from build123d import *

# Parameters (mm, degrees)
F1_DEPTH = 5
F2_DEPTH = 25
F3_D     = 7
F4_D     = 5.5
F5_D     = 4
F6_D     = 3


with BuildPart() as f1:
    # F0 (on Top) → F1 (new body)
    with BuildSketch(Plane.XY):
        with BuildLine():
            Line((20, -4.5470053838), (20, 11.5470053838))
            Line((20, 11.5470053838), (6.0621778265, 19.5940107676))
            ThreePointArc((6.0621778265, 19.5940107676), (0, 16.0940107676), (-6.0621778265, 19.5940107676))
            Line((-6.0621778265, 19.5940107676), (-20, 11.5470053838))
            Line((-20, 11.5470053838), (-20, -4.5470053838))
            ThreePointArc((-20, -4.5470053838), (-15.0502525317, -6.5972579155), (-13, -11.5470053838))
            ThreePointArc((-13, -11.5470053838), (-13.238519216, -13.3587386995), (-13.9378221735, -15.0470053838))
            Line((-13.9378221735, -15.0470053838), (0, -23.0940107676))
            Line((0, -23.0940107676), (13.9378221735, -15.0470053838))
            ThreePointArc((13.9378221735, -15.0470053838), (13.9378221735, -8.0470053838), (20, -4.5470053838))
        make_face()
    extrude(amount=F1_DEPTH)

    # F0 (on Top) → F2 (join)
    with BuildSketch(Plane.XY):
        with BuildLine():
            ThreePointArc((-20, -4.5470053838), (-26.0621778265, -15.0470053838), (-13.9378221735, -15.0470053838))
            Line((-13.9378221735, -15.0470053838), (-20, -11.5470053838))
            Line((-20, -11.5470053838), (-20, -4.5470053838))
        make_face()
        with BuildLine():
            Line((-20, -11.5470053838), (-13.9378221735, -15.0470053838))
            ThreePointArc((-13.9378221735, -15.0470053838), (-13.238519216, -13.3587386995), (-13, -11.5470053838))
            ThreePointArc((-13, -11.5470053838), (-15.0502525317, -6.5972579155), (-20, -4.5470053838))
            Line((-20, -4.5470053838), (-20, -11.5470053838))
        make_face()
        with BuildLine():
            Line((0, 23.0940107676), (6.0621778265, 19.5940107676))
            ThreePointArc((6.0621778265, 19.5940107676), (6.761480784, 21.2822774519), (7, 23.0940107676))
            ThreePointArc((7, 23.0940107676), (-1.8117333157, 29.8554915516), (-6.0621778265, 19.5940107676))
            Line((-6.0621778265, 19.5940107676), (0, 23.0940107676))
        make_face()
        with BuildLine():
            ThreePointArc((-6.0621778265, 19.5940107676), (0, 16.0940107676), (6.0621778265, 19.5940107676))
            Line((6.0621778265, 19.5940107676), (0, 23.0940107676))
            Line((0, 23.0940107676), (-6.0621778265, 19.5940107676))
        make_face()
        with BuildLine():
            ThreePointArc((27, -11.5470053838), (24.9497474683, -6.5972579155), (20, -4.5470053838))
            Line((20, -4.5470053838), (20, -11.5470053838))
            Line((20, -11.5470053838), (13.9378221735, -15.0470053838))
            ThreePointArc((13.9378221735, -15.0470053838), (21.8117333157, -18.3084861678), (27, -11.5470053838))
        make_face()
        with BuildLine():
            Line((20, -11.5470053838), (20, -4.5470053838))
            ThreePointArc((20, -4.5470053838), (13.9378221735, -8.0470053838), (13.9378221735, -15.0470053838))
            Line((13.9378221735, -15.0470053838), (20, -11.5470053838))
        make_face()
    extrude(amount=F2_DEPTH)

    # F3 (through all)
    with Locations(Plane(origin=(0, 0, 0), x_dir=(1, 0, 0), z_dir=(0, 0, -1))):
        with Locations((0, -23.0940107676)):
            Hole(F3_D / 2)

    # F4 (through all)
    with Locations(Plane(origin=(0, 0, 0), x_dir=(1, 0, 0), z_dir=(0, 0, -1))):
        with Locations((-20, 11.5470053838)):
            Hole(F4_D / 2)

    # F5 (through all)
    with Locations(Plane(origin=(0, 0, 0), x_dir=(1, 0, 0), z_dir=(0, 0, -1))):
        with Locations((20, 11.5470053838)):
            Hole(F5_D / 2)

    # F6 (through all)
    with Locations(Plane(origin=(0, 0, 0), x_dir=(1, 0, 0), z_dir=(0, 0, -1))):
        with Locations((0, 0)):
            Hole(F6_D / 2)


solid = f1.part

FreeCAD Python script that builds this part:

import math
import FreeCAD as App
import Part
import Sketcher
Q = App.Units.Quantity

doc = App.newDocument("Part")
body = doc.addObject("PartDesign::Body", "Body")

sketch1 = body.newObject("Sketcher::SketchObject", "Sketch")
sketch1.AttachmentSupport = (doc.getObject("XY_Plane"), [""])
sketch1.MapMode = "FlatFace"
sketch1.addGeometry(Part.LineSegment(App.Vector(20, -4.5, 0), App.Vector(20, 11.5, 0)), False)
sketch1.addGeometry(Part.LineSegment(App.Vector(20, 11.5, 0), App.Vector(6.1, 19.6, 0)), False)
sketch1.addGeometry(Part.ArcOfCircle(Part.Circle(App.Vector(0, 23.1, 0), App.Vector(0, 0, 1), 7), math.radians(-150), math.radians(-30)), False)
sketch1.addGeometry(Part.LineSegment(App.Vector(-6.1, 19.6, 0), App.Vector(-20, 11.5, 0)), False)
sketch1.addGeometry(Part.LineSegment(App.Vector(-20, 11.5, 0), App.Vector(-20, -4.5, 0)), False)
sketch1.addGeometry(Part.ArcOfCircle(Part.Circle(App.Vector(-20, -11.5, 0), App.Vector(0, 0, 1), 7), math.radians(0), math.radians(90)), False)
sketch1.addGeometry(Part.ArcOfCircle(Part.Circle(App.Vector(-20, -11.5, 0), App.Vector(0, 0, 1), 7), math.radians(-30), math.radians(0)), False)
sketch1.addGeometry(Part.LineSegment(App.Vector(-13.9, -15, 0), App.Vector(0, -23.1, 0)), False)
sketch1.addGeometry(Part.LineSegment(App.Vector(0, -23.1, 0), App.Vector(13.9, -15, 0)), False)
sketch1.addGeometry(Part.ArcOfCircle(Part.Circle(App.Vector(20, -11.5, 0), App.Vector(0, 0, 1), 7), math.radians(90), math.radians(210)), False)
sketch1.addConstraint(Sketcher.Constraint("Coincident", 0, 2, 1, 1))
sketch1.addConstraint(Sketcher.Constraint("Coincident", 1, 2, 2, 2))
sketch1.addConstraint(Sketcher.Constraint("Coincident", 2, 1, 3, 1))
sketch1.addConstraint(Sketcher.Constraint("Coincident", 3, 2, 4, 1))
sketch1.addConstraint(Sketcher.Constraint("Coincident", 4, 2, 5, 2))
sketch1.addConstraint(Sketcher.Constraint("Tangent", 5, 1, 6, 2))
sketch1.addConstraint(Sketcher.Constraint("Coincident", 6, 1, 7, 1))
sketch1.addConstraint(Sketcher.Constraint("Coincident", 7, 2, 8, 1))
sketch1.addConstraint(Sketcher.Constraint("Coincident", 8, 2, 9, 2))
sketch1.addConstraint(Sketcher.Constraint("Coincident", 9, 1, 0, 1))
sketch1.addConstraint(Sketcher.Constraint("Vertical", 0))
sketch1.addConstraint(Sketcher.Constraint("Vertical", 4))
sketch1.addConstraint(Sketcher.Constraint("Equal", 2, 5))
sketch1.addConstraint(Sketcher.Constraint("Equal", 5, 6))
sketch1.addConstraint(Sketcher.Constraint("Equal", 6, 9))
sketch1.addConstraint(Sketcher.Constraint("Symmetric", 5, 3, 9, 3, -2))
sketch1.addConstraint(Sketcher.Constraint("Symmetric", 1, 2, 2, 1, -2))
sketch1.addConstraint(Sketcher.Constraint("Symmetric", 0, 2, 3, 2, -2))
sketch1.addConstraint(Sketcher.Constraint("PointOnObject", 7, 2, -2))
sketch1.addConstraint(Sketcher.Constraint("Parallel", 1, 7))
sketch1.addConstraint(Sketcher.Constraint("Parallel", 3, 8))
sketch1.addConstraint(Sketcher.Constraint("Horizontal", 9, 3, 5, 1))
sketch1.addConstraint(Sketcher.Constraint("Vertical", 9, 3, 0, 2))
sketch1.addConstraint(Sketcher.Constraint("Equal", 3, 7))
sketch1.addConstraint(Sketcher.Constraint("Radius", 2, Q("7 mm")))
sketch1.addConstraint(Sketcher.Constraint("Angle", 1, Q("150 deg")))
sketch1.addConstraint(Sketcher.Constraint("DistanceX", 5, 3, -1, 1, Q("20 mm")))
sketch1.addConstraint(Sketcher.Constraint("DistanceY", 1, 2, 2, 3, Q("3.5 mm")))
sketch1.addConstraint(Sketcher.Constraint("DistanceY", 0, 1, 0, 2, Q("16.094011 mm")))
sketch1.addConstraint(Sketcher.Constraint("DistanceY", -1, 1, 2, 3, Q("23.094011 mm")))
pad1 = body.newObject("PartDesign::Pad", "Pad")
pad1.Profile = sketch1
pad1.Length = 5

sketch2 = body.newObject("Sketcher::SketchObject", "Sketch001")
sketch2.AttachmentSupport = (doc.getObject("XY_Plane"), [""])
sketch2.MapMode = "FlatFace"
sketch2.addGeometry(Part.ArcOfCircle(Part.Circle(App.Vector(-20, -11.5, 0), App.Vector(0, 0, 1), 7), math.radians(90), math.radians(330)), False)
sketch2.addGeometry(Part.ArcOfCircle(Part.Circle(App.Vector(-20, -11.5, 0), App.Vector(0, 0, 1), 7), math.radians(-30), math.radians(0)), False)
sketch2.addGeometry(Part.ArcOfCircle(Part.Circle(App.Vector(-20, -11.5, 0), App.Vector(0, 0, 1), 7), math.radians(0), math.radians(90)), False)
sketch2.addGeometry(Part.ArcOfCircle(Part.Circle(App.Vector(0, 23.1, 0), App.Vector(0, 0, 1), 7), math.radians(-30), math.radians(0)), False)
sketch2.addGeometry(Part.ArcOfCircle(Part.Circle(App.Vector(0, 23.1, 0), App.Vector(0, 0, 1), 7), math.radians(0), math.radians(210)), False)
sketch2.addGeometry(Part.ArcOfCircle(Part.Circle(App.Vector(0, 23.1, 0), App.Vector(0, 0, 1), 7), math.radians(-150), math.radians(-30)), False)
sketch2.addGeometry(Part.ArcOfCircle(Part.Circle(App.Vector(20, -11.5, 0), App.Vector(0, 0, 1), 7), math.radians(0), math.radians(90)), False)
sketch2.addGeometry(Part.ArcOfCircle(Part.Circle(App.Vector(20, -11.5, 0), App.Vector(0, 0, 1), 7), math.radians(90), math.radians(210)), False)
sketch2.addGeometry(Part.ArcOfCircle(Part.Circle(App.Vector(20, -11.5, 0), App.Vector(0, 0, 1), 7), math.radians(-150), math.radians(0)), False)
sketch2.addConstraint(Sketcher.Constraint("Tangent", 0, 2, 1, 1))
sketch2.addConstraint(Sketcher.Constraint("Tangent", 1, 2, 2, 1))
sketch2.addConstraint(Sketcher.Constraint("Tangent", 2, 2, 0, 1))
sketch2.addConstraint(Sketcher.Constraint("Tangent", 3, 2, 4, 1))
sketch2.addConstraint(Sketcher.Constraint("Tangent", 4, 2, 5, 1))
sketch2.addConstraint(Sketcher.Constraint("Tangent", 5, 2, 3, 1))
sketch2.addConstraint(Sketcher.Constraint("Tangent", 6, 2, 7, 1))
sketch2.addConstraint(Sketcher.Constraint("Tangent", 7, 2, 8, 1))
sketch2.addConstraint(Sketcher.Constraint("Tangent", 8, 2, 6, 1))
sketch2.addConstraint(Sketcher.Constraint("Equal", 2, 3))
sketch2.addConstraint(Sketcher.Constraint("Equal", 5, 6))
sketch2.addConstraint(Sketcher.Constraint("Symmetric", 0, 3, 6, 3, -2))
sketch2.addConstraint(Sketcher.Constraint("Symmetric", 4, 2, 5, 2, -2))
sketch2.addConstraint(Sketcher.Constraint("Horizontal", 8, 3, 1, 2))
sketch2.addConstraint(Sketcher.Constraint("Horizontal", 5, 3, 3, 2))
sketch2.addConstraint(Sketcher.Constraint("Horizontal", 0, 2, 7, 2))
sketch2.addConstraint(Sketcher.Constraint("Horizontal", 1, 2, 8, 2))
sketch2.addConstraint(Sketcher.Constraint("Vertical", 1, 3, 2, 2))
sketch2.addConstraint(Sketcher.Constraint("Vertical", 8, 3, 6, 2))
sketch2.addConstraint(Sketcher.Constraint("Radius", 0, Q("7 mm")))
sketch2.addConstraint(Sketcher.Constraint("DistanceX", 0, 3, -1, 1, Q("20 mm")))
sketch2.addConstraint(Sketcher.Constraint("DistanceY", 0, 2, 0, 3, Q("3.5 mm")))
sketch2.addConstraint(Sketcher.Constraint("DistanceY", 4, 2, 3, 3, Q("3.5 mm")))
sketch2.addConstraint(Sketcher.Constraint("DistanceY", -1, 1, 3, 3, Q("23.094011 mm")))
sketch2.addConstraint(Sketcher.Constraint("DistanceY", 0, 3, -1, 1, Q("11.547005 mm")))
pad2 = body.newObject("PartDesign::Pad", "Pad001")
pad2.Profile = sketch2
pad2.Length = 25

sketch3 = body.newObject("Sketcher::SketchObject", "Sketch002")
sketch3.AttachmentSupport = (doc.getObject("XY_Plane"), [""])
sketch3.MapMode = "FlatFace"
sketch3.addGeometry(Part.Circle(App.Vector(0, 23.1, 0), App.Vector(0, 0, 1), 3.5), False)
sketch3.addConstraint(Sketcher.Constraint("PointOnObject", 0, 3, -2))
sketch3.addConstraint(Sketcher.Constraint("Diameter", 0, Q("7 mm")))
sketch3.addConstraint(Sketcher.Constraint("DistanceY", -1, 1, 0, 3, Q("23.094011 mm")))
doc.recompute()
hole = body.newObject("PartDesign::Hole", "Hole")
hole.Profile = sketch3
hole.ThreadType = "None"
hole.Diameter = 7
hole.DepthType = "ThroughAll"
hole.Reversed = True

sketch4 = body.newObject("Sketcher::SketchObject", "Sketch003")
sketch4.AttachmentSupport = (doc.getObject("XY_Plane"), [""])
sketch4.MapMode = "FlatFace"
sketch4.addGeometry(Part.Circle(App.Vector(-20, -11.5, 0), App.Vector(0, 0, 1), 2.8), False)
sketch4.addConstraint(Sketcher.Constraint("Diameter", 0, Q("5.5 mm")))
sketch4.addConstraint(Sketcher.Constraint("DistanceX", 0, 3, -1, 1, Q("20 mm")))
sketch4.addConstraint(Sketcher.Constraint("DistanceY", 0, 3, -1, 1, Q("11.547005 mm")))
doc.recompute()
hole2 = body.newObject("PartDesign::Hole", "Hole001")
hole2.Profile = sketch4
hole2.ThreadType = "None"
hole2.Diameter = 5.5
hole2.DepthType = "ThroughAll"
hole2.Reversed = True

sketch5 = body.newObject("Sketcher::SketchObject", "Sketch004")
sketch5.AttachmentSupport = (doc.getObject("XY_Plane"), [""])
sketch5.MapMode = "FlatFace"
sketch5.addGeometry(Part.Circle(App.Vector(20, -11.5, 0), App.Vector(0, 0, 1), 2), False)
sketch5.addConstraint(Sketcher.Constraint("Diameter", 0, Q("4 mm")))
sketch5.addConstraint(Sketcher.Constraint("DistanceX", -1, 1, 0, 3, Q("20 mm")))
sketch5.addConstraint(Sketcher.Constraint("DistanceY", 0, 3, -1, 1, Q("11.547005 mm")))
doc.recompute()
hole3 = body.newObject("PartDesign::Hole", "Hole002")
hole3.Profile = sketch5
hole3.ThreadType = "None"
hole3.Diameter = 4
hole3.DepthType = "ThroughAll"
hole3.Reversed = True

sketch6 = body.newObject("Sketcher::SketchObject", "Sketch005")
sketch6.AttachmentSupport = (doc.getObject("XY_Plane"), [""])
sketch6.MapMode = "FlatFace"
sketch6.addGeometry(Part.Circle(App.Vector(0, 0, 0), App.Vector(0, 0, 1), 1.5), False)
sketch6.addConstraint(Sketcher.Constraint("Coincident", 0, 3, -1, 1))
sketch6.addConstraint(Sketcher.Constraint("Diameter", 0, Q("3 mm")))
doc.recompute()
hole4 = body.newObject("PartDesign::Hole", "Hole003")
hole4.Profile = sketch6
hole4.ThreadType = "None"
hole4.Diameter = 3
hole4.DepthType = "ThroughAll"
hole4.Reversed = True

doc.recompute()
